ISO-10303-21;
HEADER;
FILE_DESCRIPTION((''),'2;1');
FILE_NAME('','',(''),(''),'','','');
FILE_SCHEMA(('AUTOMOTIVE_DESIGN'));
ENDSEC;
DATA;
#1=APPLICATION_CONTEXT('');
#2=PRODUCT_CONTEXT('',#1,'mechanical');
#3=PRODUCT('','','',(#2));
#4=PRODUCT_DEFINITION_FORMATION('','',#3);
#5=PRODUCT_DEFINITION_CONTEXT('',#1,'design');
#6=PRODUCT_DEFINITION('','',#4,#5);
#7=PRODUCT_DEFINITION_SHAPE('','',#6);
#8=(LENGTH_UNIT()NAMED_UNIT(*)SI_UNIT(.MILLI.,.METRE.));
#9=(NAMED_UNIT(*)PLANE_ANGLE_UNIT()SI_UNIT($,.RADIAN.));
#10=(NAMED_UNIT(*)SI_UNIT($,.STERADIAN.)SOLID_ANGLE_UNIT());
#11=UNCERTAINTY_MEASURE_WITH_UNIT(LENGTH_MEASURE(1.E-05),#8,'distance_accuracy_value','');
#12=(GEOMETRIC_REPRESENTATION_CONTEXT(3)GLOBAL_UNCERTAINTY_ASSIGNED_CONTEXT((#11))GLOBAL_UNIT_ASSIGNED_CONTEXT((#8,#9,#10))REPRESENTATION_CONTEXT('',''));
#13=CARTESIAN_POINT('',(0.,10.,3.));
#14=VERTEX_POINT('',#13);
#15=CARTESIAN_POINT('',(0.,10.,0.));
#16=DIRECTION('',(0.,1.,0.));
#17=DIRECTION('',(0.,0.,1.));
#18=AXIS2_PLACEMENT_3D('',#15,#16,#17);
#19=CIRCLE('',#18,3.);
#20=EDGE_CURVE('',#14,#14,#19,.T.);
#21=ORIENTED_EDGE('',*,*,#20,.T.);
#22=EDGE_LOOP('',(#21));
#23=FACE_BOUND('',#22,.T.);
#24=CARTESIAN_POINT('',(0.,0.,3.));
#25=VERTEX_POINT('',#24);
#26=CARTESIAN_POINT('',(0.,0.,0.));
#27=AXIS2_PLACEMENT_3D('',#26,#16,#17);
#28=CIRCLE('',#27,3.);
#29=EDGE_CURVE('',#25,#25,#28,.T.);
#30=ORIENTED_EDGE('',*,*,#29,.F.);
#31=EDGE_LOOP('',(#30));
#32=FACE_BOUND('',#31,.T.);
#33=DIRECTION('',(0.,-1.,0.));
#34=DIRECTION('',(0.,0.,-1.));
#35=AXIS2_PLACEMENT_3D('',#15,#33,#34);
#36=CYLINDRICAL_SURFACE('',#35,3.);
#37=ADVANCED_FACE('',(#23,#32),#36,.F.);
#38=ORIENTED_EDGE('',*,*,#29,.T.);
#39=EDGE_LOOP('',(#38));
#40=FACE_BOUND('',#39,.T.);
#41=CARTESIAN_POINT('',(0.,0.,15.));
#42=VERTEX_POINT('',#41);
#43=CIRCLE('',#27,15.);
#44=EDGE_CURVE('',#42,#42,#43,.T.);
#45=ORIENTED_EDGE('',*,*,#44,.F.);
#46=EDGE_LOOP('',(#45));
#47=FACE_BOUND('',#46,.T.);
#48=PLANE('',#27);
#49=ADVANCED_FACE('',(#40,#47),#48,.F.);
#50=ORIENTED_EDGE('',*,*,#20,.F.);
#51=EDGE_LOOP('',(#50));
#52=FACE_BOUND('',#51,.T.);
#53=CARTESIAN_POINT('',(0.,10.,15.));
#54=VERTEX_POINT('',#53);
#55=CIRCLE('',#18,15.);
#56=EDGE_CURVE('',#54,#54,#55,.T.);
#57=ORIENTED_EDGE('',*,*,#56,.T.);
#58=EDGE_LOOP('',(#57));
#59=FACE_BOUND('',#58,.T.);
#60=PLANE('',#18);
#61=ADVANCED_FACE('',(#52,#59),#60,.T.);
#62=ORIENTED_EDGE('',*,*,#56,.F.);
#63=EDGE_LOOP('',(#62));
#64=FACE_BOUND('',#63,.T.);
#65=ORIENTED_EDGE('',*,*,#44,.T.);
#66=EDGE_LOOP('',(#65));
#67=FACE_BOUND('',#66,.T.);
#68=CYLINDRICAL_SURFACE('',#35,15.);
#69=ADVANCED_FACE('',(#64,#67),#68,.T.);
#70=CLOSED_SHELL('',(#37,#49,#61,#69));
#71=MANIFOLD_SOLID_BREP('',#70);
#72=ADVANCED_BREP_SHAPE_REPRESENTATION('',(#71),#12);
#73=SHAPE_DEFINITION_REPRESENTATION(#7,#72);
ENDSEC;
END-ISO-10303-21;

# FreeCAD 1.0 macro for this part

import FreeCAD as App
import Part
import Sketcher

V = App.Vector
Q = App.Units.Quantity

doc = App.newDocument("Part")
body = doc.addObject("PartDesign::Body", "Body")

sketch1 = body.newObject("Sketcher::SketchObject", "Sketch")
sketch1.AttachmentSupport = (doc.getObject("XZ_Plane"), [""])
sketch1.MapMode = "FlatFace"
sketch1.addGeometry(Part.Circle(V(0, 0, 0), V(0, 0, 1), 15), False)
sketch1.addGeometry(Part.Circle(V(0, 0, 0), V(0, 0, 1), 3), False)
sketch1.addConstraint(Sketcher.Constraint("Coincident", 0, 3, -1, 1))
sketch1.addConstraint(Sketcher.Constraint("Coincident", 1, 3, -1, 1))
sketch1.addConstraint(Sketcher.Constraint("Diameter", 0, Q("30 mm")))
sketch1.addConstraint(Sketcher.Constraint("Diameter", 1, Q("6 mm")))
pad1 = body.newObject("PartDesign::Pad", "Pad")
pad1.Profile = sketch1
pad1.Length = 10
pad1.Reversed = True

doc.recompute()
